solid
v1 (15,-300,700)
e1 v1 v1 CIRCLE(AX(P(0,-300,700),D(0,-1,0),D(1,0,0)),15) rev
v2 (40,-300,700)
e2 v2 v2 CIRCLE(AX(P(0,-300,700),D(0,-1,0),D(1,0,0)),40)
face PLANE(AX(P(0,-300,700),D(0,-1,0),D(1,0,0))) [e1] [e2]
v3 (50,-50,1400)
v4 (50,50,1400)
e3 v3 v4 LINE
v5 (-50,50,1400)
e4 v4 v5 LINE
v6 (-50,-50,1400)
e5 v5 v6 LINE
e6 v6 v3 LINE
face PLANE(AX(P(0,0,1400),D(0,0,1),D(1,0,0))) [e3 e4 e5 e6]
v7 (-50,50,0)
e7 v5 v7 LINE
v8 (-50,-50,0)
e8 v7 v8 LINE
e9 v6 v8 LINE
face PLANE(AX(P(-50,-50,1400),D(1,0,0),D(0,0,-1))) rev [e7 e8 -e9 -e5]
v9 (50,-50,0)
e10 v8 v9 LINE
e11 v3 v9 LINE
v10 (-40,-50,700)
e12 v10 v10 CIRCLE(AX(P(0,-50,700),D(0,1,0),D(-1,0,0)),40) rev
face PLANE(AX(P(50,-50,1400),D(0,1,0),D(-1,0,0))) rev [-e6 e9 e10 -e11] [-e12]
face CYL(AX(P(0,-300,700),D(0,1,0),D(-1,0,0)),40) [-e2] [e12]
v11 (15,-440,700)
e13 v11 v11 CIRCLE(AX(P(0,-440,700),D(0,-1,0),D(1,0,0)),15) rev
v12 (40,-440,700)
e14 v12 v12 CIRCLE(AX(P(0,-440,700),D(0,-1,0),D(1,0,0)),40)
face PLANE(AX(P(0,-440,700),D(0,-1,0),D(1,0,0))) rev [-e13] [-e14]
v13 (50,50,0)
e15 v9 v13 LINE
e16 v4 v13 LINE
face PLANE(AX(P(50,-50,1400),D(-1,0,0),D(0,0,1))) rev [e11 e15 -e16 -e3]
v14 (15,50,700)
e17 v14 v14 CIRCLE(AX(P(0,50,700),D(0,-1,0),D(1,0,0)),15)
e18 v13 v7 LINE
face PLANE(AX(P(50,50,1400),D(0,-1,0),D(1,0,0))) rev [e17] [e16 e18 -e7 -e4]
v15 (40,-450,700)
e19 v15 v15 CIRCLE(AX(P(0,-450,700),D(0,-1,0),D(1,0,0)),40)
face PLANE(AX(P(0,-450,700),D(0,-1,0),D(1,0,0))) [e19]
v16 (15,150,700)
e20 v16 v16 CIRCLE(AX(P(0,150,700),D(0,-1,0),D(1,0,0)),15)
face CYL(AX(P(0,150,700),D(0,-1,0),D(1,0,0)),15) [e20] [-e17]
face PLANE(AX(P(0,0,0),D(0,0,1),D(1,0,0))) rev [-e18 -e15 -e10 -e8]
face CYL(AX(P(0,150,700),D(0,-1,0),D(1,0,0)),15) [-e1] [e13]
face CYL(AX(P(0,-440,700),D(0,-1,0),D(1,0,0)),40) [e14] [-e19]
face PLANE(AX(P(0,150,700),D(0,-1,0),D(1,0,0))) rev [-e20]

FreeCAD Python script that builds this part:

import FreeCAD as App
import Part
import Sketcher
from FreeCAD import Vector


def add_polygon(sketch, points):
    """Adds a closed chain of lines whose ends are joined by coincident constraints."""
    first, n = sketch.GeometryCount, len(points)
    for a, b in zip(points, points[1:] + points[:1]):
        sketch.addGeometry(Part.LineSegment(App.Vector(*a, 0), App.Vector(*b, 0)), False)
    for i in range(n):
        sketch.addConstraint(Sketcher.Constraint("Coincident", first + i, 2, first + (i + 1) % n, 1))

doc = App.newDocument("Part")
body = doc.addObject("PartDesign::Body", "Body")

# Sketch on XY plane
sketch1 = body.newObject("Sketcher::SketchObject", "Sketch")
sketch1.AttachmentSupport = (doc.getObject("XY_Plane"), [""])
sketch1.MapMode = "FlatFace"
add_polygon(sketch1, [(-50, 50), (-50, -50), (50, -50), (50, 50)])  # lines 0-3
sketch1.addConstraint([
    Sketcher.Constraint("Vertical", 0),
    Sketcher.Constraint("Horizontal", 1),
    Sketcher.Constraint("Vertical", 2),
    Sketcher.Constraint("Horizontal", 3),
    Sketcher.Constraint("Symmetric", 0, 2, 2, 2, -1, 1),
    Sketcher.Constraint("Equal", 3, 0),
    Sketcher.Constraint("DistanceX", 1, 1, 1, 2, 100.0),
])
pad1 = body.newObject("PartDesign::Pad", "Pad")
pad1.Profile = sketch1
pad1.Length = 1400

# Sketch on XZ plane
sketch2 = body.newObject("Sketcher::SketchObject", "Sketch001")
sketch2.AttachmentSupport = (doc.getObject("XZ_Plane"), [""])
sketch2.MapMode = "FlatFace"
sketch2.AttachmentOffset = App.Placement(Vector(0, 0, 50), App.Rotation())
sketch2.addGeometry(Part.Circle(Vector(0, 700, 0), Vector(0, 0, 1), 15), False)
sketch2.addConstraint([
    Sketcher.Constraint("PointOnObject", 0, 3, -2),
    Sketcher.Constraint("Diameter", 0, 30.0),
    Sketcher.Constraint("DistanceY", -1, 1, 0, 3, 700.0),
])
pad2 = body.newObject("PartDesign::Pad", "Pad001")
pad2.Profile = sketch2
pad2.Type = "TwoLengths"
pad2.Length = 400
pad2.Length2 = 200

# Sketch on XZ plane
sketch3 = body.newObject("Sketcher::SketchObject", "Sketch002")
sketch3.AttachmentSupport = (doc.getObject("XZ_Plane"), [""])
sketch3.MapMode = "FlatFace"
sketch3.AttachmentOffset = App.Placement(Vector(0, 0, 450), App.Rotation())
sketch3.addGeometry(Part.Circle(Vector(0, 700, 0), Vector(0, 0, 1), 40), False)
sketch3.addConstraint([
    Sketcher.Constraint("PointOnObject", 0, 3, -2),
    Sketcher.Constraint("Diameter", 0, 80.0),
    Sketcher.Constraint("DistanceY", -1, 1, 0, 3, 700.0),
])
pad3 = body.newObject("PartDesign::Pad", "Pad002")
pad3.Profile = sketch3
pad3.Length = 10
pad3.Reversed = True

# Sketch on XZ plane
sketch4 = body.newObject("Sketcher::SketchObject", "Sketch003")
sketch4.AttachmentSupport = (doc.getObject("XZ_Plane"), [""])
sketch4.MapMode = "FlatFace"
sketch4.AttachmentOffset = App.Placement(Vector(0, 0, 300), App.Rotation())
sketch4.addGeometry(Part.Circle(Vector(0, 700, 0), Vector(0, 0, 1), 40), False)
sketch4.addConstraint([
    Sketcher.Constraint("PointOnObject", 0, 3, -2),
    Sketcher.Constraint("Diameter", 0, 80.0),
    Sketcher.Constraint("DistanceY", -1, 1, 0, 3, 700.0),
])
pad4 = body.newObject("PartDesign::Pad", "Pad003")
pad4.Profile = sketch4
pad4.Length = 250
pad4.Reversed = True

doc.recompute()
